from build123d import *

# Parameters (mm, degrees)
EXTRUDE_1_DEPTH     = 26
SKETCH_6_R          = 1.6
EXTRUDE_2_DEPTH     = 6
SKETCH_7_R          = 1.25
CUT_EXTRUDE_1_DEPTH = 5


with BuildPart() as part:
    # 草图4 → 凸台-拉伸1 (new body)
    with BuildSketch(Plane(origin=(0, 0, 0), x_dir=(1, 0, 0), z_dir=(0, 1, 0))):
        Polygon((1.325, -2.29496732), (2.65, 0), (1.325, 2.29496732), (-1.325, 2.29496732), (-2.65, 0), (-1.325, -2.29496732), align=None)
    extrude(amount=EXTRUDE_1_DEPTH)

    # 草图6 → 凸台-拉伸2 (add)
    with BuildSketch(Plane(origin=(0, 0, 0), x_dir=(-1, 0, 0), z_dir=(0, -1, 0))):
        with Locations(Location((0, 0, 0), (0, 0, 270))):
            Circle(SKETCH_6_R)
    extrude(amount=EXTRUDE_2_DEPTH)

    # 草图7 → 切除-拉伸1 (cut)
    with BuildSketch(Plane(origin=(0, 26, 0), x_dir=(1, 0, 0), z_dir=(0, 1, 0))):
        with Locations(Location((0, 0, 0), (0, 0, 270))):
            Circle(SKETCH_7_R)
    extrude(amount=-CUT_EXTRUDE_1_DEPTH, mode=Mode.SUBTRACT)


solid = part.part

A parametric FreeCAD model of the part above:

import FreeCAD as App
import Part
import Sketcher

V = App.Vector
Q = App.Units.Quantity


def add_polygon(sketch, points):
    """Adds a closed chain of lines whose ends are joined by coincident constraints."""
    first, n = sketch.GeometryCount, len(points)
    for a, b in zip(points, points[1:] + points[:1]):
        sketch.addGeometry(Part.LineSegment(App.Vector(*a, 0), App.Vector(*b, 0)), False)
    for i in range(n):
        sketch.addConstraint(Sketcher.Constraint("Coincident", first + i, 2, first + (i + 1) % n, 1))

doc = App.newDocument("Part")
body = doc.addObject("PartDesign::Body", "Body")

# Sketch on XZ plane
sketch1 = body.newObject("Sketcher::SketchObject", "Sketch")
sketch1.AttachmentSupport = (doc.getObject("XZ_Plane"), [""])
sketch1.MapMode = "FlatFace"
add_polygon(sketch1, [(1.325, 2.294967), (2.65, 0), (1.325, -2.294967), (-1.325, -2.294967), (-2.65, 0), (-1.325, 2.294967)])  # lines 0-5
sketch1.addConstraint(Sketcher.Constraint("Horizontal", 2))
sketch1.addConstraint(Sketcher.Constraint("Horizontal", 5))
sketch1.addConstraint(Sketcher.Constraint("Symmetric", 0, 2, 3, 2, -1, 1))
sketch1.addConstraint(Sketcher.Constraint("Symmetric", 1, 2, 4, 2, -1, 1))
sketch1.addConstraint(Sketcher.Constraint("PointOnObject", 0, 2, -1))
sketch1.addConstraint(Sketcher.Constraint("Parallel", 0, 3))
sketch1.addConstraint(Sketcher.Constraint("Vertical", 2, 2, 4, 2))
sketch1.addConstraint(Sketcher.Constraint("Angle", 0, Q("-60 deg")))
sketch1.addConstraint(Sketcher.Constraint("DistanceX", 2, 2, 2, 1, 2.65))
sketch1.addConstraint(Sketcher.Constraint("DistanceX", 3, 2, 0, 2, 5.3))
pad1 = body.newObject("PartDesign::Pad", "Pad")
pad1.Profile = sketch1
pad1.Length = 26
pad1.Reversed = True

# Sketch on XZ plane
sketch2 = body.newObject("Sketcher::SketchObject", "Sketch001")
sketch2.AttachmentSupport = (doc.getObject("XZ_Plane"), [""])
sketch2.MapMode = "FlatFace"
sketch2.addGeometry(Part.Circle(V(0, 0, 0), V(0, 0, 1), 1.6), False)
sketch2.addConstraint(Sketcher.Constraint("Coincident", 0, 3, -1, 1))
sketch2.addConstraint(Sketcher.Constraint("Diameter", 0, 3.2))
pad2 = body.newObject("PartDesign::Pad", "Pad001")
pad2.Profile = sketch2
pad2.Length = 6

# Sketch on XZ plane
sketch3 = body.newObject("Sketcher::SketchObject", "Sketch002")
sketch3.AttachmentSupport = (doc.getObject("XZ_Plane"), [""])
sketch3.MapMode = "FlatFace"
sketch3.AttachmentOffset = App.Placement(V(0, 0, -26), App.Rotation())
sketch3.addGeometry(Part.Circle(V(0, 0, 0), V(0, 0, 1), 1.25), False)
sketch3.addConstraint(Sketcher.Constraint("Coincident", 0, 3, -1, 1))
sketch3.addConstraint(Sketcher.Constraint("Diameter", 0, 2.5))
pocket1 = body.newObject("PartDesign::Pocket", "Pocket")
pocket1.Profile = sketch3
pocket1.Length = 5
pocket1.Reversed = True

doc.recompute()
